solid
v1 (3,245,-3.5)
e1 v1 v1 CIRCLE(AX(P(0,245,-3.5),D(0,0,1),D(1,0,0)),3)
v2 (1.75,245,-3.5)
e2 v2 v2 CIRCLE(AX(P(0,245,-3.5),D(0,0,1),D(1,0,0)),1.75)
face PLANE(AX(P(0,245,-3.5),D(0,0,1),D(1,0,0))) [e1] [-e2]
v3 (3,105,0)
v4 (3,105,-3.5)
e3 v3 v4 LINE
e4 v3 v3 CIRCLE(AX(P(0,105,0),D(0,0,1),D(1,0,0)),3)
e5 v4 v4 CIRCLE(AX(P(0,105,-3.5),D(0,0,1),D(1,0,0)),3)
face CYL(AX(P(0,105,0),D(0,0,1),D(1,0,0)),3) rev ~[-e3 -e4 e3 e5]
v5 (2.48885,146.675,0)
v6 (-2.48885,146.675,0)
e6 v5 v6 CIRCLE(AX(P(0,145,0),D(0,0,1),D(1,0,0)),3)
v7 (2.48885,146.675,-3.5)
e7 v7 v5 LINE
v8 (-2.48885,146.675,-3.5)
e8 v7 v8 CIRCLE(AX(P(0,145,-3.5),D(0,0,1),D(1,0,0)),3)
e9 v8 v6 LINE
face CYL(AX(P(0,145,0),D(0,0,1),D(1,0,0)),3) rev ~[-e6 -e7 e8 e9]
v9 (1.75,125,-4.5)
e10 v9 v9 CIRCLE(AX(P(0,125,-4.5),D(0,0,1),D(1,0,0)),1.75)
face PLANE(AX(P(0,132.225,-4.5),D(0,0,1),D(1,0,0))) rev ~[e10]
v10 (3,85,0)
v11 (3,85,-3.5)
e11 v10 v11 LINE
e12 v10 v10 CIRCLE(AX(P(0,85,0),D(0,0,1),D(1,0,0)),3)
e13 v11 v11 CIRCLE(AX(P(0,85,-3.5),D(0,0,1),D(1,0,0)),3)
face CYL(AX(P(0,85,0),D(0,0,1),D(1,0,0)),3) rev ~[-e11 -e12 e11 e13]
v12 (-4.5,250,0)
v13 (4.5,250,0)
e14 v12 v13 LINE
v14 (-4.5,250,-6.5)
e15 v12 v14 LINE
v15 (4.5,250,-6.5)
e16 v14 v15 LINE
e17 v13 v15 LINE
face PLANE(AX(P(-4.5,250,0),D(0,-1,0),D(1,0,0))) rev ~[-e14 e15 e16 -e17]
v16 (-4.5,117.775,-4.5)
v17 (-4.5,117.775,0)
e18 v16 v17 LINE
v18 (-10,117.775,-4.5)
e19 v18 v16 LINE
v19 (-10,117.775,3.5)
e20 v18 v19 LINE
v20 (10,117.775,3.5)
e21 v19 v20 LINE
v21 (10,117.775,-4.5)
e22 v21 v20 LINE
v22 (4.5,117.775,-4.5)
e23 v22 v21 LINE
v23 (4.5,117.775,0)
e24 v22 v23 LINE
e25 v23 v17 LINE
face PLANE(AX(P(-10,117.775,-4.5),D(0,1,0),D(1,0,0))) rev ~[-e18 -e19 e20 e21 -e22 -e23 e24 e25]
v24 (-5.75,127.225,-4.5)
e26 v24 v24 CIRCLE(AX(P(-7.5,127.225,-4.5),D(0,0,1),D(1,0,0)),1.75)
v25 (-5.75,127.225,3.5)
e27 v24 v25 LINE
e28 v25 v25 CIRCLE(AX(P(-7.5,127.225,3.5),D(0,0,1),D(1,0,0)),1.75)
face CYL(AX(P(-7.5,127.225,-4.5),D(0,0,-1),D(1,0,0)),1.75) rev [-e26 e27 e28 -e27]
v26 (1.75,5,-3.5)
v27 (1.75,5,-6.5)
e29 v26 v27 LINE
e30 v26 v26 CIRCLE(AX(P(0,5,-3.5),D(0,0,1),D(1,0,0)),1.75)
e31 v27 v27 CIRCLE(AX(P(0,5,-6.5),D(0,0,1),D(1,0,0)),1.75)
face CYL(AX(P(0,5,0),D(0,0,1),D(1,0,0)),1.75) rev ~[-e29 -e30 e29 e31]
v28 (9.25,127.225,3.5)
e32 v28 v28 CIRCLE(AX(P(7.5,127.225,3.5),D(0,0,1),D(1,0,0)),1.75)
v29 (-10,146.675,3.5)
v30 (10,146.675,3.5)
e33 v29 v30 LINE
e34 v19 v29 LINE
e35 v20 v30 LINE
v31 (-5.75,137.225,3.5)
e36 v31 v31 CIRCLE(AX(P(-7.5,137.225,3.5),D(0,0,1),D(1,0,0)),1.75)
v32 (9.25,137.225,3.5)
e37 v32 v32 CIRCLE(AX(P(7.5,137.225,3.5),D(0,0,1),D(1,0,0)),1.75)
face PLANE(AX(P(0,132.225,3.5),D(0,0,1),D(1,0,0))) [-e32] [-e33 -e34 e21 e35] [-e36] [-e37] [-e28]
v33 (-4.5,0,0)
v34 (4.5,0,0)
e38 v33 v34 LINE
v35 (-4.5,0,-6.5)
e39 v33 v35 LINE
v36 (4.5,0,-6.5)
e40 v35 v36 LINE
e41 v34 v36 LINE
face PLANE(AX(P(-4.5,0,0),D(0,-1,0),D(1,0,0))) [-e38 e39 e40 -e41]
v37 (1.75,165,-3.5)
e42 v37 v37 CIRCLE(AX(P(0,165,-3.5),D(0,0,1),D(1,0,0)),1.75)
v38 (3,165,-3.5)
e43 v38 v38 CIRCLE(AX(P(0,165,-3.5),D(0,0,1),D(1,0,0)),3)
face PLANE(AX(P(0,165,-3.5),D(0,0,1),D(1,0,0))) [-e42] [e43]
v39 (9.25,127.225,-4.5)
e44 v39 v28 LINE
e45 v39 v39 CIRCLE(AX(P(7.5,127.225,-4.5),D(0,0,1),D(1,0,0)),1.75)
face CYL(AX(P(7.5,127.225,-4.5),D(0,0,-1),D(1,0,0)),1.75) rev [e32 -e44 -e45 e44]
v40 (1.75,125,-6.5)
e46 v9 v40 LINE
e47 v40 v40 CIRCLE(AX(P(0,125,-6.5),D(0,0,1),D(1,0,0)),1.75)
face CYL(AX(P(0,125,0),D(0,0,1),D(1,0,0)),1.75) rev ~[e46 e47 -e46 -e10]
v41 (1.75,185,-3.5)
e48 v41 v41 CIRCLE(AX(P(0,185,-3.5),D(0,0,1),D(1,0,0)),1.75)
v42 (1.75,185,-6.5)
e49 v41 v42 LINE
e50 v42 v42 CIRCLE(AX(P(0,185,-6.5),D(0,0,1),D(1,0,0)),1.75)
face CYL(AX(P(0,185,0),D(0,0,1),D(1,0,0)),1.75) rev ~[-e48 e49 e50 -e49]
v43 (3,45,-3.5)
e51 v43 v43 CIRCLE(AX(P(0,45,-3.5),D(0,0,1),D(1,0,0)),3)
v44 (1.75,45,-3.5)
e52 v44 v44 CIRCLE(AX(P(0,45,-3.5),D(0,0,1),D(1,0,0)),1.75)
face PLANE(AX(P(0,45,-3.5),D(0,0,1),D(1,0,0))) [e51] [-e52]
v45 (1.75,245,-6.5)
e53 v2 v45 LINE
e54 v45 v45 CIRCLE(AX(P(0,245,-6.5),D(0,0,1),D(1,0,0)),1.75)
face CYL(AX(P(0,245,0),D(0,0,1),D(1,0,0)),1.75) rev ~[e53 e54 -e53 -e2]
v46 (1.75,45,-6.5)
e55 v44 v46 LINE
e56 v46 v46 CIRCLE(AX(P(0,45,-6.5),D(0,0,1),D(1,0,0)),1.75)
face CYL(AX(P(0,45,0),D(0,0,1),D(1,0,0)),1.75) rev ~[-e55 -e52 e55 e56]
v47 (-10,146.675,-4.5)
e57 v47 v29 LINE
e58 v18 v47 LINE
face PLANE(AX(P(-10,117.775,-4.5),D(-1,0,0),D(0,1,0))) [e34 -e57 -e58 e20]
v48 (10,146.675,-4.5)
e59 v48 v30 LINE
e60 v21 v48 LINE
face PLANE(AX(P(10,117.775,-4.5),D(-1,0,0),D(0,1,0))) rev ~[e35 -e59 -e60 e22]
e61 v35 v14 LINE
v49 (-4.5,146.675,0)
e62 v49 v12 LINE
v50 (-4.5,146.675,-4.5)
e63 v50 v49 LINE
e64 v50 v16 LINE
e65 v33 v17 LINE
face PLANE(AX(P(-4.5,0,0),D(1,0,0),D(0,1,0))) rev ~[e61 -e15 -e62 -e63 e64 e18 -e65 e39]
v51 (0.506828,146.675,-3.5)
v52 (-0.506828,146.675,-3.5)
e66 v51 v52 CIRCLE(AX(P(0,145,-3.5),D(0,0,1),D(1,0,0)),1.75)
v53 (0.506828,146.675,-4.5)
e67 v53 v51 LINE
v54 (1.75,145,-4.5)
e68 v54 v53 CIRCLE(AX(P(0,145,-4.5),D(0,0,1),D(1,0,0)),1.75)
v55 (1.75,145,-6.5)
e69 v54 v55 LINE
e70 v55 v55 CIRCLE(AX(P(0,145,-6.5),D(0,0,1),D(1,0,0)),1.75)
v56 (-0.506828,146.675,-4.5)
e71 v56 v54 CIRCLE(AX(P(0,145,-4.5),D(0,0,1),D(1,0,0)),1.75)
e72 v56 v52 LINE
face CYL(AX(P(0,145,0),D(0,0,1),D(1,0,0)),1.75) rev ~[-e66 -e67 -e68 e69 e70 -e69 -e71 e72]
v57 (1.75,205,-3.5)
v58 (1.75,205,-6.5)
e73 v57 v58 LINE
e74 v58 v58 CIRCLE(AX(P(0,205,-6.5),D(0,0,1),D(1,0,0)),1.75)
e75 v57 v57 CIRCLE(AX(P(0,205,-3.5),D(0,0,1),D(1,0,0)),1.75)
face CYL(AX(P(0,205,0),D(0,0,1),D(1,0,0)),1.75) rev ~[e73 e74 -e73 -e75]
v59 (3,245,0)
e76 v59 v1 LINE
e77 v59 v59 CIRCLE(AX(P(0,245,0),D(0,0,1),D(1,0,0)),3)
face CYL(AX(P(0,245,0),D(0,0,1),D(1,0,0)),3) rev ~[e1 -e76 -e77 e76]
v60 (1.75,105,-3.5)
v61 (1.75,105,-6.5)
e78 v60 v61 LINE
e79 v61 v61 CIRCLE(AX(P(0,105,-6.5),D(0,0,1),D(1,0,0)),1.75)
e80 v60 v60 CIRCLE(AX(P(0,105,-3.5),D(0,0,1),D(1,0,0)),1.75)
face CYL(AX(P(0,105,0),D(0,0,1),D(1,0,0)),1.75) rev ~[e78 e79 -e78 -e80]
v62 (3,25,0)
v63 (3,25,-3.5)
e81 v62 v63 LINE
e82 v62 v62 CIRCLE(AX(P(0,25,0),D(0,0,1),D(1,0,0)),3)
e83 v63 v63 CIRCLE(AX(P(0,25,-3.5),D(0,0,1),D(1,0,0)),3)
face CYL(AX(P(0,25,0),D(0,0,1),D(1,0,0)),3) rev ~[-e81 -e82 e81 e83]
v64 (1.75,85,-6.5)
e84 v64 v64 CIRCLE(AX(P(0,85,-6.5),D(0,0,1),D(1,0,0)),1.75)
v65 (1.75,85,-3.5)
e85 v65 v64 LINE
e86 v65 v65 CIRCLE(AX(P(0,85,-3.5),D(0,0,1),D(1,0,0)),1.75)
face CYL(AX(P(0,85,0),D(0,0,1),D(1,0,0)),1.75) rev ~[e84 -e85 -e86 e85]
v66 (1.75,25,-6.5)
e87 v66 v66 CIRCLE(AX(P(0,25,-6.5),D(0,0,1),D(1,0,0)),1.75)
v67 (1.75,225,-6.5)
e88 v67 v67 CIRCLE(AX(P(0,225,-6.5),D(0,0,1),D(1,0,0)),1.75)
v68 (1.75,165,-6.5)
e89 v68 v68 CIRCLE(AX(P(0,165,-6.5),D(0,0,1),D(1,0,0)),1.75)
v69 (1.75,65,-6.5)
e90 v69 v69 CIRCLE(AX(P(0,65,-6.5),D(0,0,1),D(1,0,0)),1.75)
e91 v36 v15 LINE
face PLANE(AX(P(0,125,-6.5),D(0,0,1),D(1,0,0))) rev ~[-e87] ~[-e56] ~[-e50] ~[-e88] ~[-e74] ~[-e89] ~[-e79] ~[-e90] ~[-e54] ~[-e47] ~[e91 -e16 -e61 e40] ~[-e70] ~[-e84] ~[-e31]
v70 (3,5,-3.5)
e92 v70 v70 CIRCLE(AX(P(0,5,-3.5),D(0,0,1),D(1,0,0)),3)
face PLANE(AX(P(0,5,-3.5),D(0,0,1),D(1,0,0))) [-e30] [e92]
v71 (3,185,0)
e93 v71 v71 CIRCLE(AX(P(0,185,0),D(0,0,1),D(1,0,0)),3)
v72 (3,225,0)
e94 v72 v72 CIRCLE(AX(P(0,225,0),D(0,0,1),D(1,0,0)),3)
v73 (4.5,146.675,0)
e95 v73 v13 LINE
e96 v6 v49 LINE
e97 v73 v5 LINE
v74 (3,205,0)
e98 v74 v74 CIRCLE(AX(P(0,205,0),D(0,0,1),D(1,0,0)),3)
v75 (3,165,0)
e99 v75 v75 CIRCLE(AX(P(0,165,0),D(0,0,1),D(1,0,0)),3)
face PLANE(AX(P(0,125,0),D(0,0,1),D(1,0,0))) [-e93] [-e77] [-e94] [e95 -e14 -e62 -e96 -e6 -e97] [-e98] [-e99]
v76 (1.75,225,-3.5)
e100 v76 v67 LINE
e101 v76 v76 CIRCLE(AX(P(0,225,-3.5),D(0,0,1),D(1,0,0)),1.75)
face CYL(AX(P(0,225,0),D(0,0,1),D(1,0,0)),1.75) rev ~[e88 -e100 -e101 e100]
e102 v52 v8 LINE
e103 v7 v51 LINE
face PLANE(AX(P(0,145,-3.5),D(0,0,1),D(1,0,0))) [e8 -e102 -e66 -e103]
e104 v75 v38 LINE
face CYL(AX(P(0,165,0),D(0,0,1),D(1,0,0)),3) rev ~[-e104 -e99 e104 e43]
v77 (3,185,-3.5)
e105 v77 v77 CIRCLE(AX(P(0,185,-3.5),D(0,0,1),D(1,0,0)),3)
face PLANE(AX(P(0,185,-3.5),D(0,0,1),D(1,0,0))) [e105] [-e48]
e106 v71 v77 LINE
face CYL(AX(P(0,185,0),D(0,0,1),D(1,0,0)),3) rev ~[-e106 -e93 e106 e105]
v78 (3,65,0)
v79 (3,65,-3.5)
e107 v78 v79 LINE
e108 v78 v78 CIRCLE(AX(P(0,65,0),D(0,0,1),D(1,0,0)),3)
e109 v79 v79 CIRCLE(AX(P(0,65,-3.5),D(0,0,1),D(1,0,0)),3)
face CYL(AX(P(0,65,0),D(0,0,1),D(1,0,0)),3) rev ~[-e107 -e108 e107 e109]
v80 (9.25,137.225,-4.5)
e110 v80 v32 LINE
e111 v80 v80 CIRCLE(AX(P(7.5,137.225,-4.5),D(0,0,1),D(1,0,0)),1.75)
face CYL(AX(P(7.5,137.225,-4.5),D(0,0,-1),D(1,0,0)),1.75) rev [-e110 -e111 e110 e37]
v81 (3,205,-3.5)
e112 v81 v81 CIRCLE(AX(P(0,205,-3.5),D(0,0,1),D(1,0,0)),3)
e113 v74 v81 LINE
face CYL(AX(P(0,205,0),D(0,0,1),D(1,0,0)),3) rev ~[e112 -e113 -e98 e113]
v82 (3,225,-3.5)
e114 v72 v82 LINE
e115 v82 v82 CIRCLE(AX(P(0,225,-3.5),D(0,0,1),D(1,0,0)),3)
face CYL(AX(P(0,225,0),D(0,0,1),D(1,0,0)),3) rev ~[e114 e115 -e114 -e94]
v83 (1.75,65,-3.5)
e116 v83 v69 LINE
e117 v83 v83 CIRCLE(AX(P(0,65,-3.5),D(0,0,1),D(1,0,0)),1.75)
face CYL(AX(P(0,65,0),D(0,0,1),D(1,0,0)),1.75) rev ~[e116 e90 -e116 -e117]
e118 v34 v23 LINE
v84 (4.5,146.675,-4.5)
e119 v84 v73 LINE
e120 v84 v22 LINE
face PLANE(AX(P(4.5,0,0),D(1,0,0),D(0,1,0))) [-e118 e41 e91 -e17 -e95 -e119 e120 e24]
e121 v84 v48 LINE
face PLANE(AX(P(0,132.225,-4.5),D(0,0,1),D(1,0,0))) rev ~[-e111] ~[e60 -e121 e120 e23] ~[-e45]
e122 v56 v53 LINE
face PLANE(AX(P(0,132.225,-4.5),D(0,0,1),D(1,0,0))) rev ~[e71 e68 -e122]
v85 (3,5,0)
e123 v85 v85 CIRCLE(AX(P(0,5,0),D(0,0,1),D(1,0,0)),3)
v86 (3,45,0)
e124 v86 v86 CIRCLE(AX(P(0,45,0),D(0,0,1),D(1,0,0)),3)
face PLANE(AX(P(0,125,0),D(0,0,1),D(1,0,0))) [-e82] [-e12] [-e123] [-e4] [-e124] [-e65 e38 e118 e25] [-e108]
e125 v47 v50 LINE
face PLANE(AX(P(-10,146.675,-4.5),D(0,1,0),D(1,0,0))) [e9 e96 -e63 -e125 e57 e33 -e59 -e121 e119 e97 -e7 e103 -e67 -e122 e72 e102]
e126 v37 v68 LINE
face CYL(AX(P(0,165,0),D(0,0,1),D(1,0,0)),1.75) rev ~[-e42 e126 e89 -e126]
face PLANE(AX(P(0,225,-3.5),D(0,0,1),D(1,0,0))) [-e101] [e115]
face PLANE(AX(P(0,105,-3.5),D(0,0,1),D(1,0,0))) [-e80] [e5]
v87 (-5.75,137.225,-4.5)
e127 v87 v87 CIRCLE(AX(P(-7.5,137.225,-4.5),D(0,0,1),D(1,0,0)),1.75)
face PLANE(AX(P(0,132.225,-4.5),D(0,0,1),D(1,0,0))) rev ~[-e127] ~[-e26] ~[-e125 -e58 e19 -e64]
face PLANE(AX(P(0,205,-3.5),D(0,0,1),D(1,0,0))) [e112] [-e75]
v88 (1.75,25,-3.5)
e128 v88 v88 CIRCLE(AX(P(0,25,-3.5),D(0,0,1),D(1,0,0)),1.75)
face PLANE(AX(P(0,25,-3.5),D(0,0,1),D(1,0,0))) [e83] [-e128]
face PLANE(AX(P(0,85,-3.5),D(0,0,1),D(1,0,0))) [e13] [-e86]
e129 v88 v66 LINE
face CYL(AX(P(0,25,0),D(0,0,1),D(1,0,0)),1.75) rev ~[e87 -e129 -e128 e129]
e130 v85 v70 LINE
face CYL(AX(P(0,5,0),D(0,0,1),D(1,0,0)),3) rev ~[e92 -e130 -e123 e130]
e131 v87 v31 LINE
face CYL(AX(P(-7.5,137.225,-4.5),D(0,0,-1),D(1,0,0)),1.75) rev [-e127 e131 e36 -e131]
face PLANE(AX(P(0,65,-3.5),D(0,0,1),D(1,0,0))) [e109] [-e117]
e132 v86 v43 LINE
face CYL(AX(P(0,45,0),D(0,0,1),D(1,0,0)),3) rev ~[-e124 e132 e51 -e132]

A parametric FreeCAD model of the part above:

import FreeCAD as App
import Part
import Sketcher
from FreeCAD import Vector
Q = App.Units.Quantity


def add_polygon(sketch, points):
    """Adds a closed chain of lines whose ends are joined by coincident constraints."""
    first, n = sketch.GeometryCount, len(points)
    for a, b in zip(points, points[1:] + points[:1]):
        sketch.addGeometry(Part.LineSegment(App.Vector(*a, 0), App.Vector(*b, 0)), False)
    for i in range(n):
        sketch.addConstraint(Sketcher.Constraint("Coincident", first + i, 2, first + (i + 1) % n, 1))

doc = App.newDocument("Part")
params = doc.addObject("Spreadsheet::Sheet", "Params")
for row, (alias, value) in enumerate([
    ("sketch1_width", "9 mm"),
    ("sketch1_height", "250 mm"),
    ("pad1_length", "6.5 mm"),
    ("sketch2_diameter", "3.5 mm"),
    ("pocket1_length", "6.5 mm"),
    ("linearpattern_pitch", "20 mm"),
    ("sketch3_diameter", "6 mm"),
    ("pocket2_length", "3.5 mm"),
    ("linearpattern2_pitch", "20 mm"),
    ("sketch4_diameter", "3.5 mm"),
    ("sketch4_width", "20 mm"),
    ("sketch4_height", "28.9 mm"),
    ("pad2_length", "8 mm"),
], start=1):
    params.set(f"A{row}", alias)
    params.set(f"B{row}", "=" + value)
    params.setAlias(f"B{row}", alias)

body = doc.addObject("PartDesign::Body", "Body")

# Sketch on XY plane
sketch1 = doc.addObject("Sketcher::SketchObject", "Sketch")
body.addObject(sketch1)
sketch1.AttachmentSupport = (doc.XY_Plane, [""])
sketch1.MapMode = "FlatFace"
add_polygon(sketch1, [(-4, 250), (-4, 0), (4, 0), (4, 250)])  # lines 0-3
sketch1.addConstraint([
    Sketcher.Constraint("Vertical", 0),
    Sketcher.Constraint("Horizontal", 1),
    Sketcher.Constraint("Vertical", 2),
    Sketcher.Constraint("Horizontal", 3),
    Sketcher.Constraint("Symmetric", 0, 2, 1, 2, -1, 1),
    Sketcher.Constraint("DistanceX", 1, 1, 1, 2, Q("9 mm")),
    Sketcher.Constraint("DistanceY", 0, 2, 0, 1, Q("250 mm")),
])
sketch1.setExpression("Constraints[9]", "Params.sketch1_width")
sketch1.setExpression("Constraints[10]", "Params.sketch1_height")
pad1 = doc.addObject("PartDesign::Pad", "Pad")
body.addObject(pad1)
pad1.Profile = sketch1
pad1.setExpression("Length", "Params.pad1_length")
pad1.Reversed = True

# Sketch on XY plane
sketch2 = doc.addObject("Sketcher::SketchObject", "Sketch001")
body.addObject(sketch2)
sketch2.AttachmentSupport = (doc.XY_Plane, [""])
sketch2.MapMode = "FlatFace"
sketch2.addGeometry(Part.Circle(Vector(0, 5, 0), Vector(0, 0, 1), 1.8), False)
sketch2.addConstraint([
    Sketcher.Constraint("PointOnObject", 0, 3, -2),
    Sketcher.Constraint("Diameter", 0, Q("3.5 mm")),
    Sketcher.Constraint("DistanceY", -1, 1, 0, 3, Q("5 mm")),
])
sketch2.setExpression("Constraints[1]", "Params.sketch2_diameter")
pocket1 = doc.addObject("PartDesign::Pocket", "Pocket")
body.addObject(pocket1)
pocket1.Profile = sketch2
pocket1.setExpression("Length", "Params.pocket1_length")
doc.recompute()

linearpattern = doc.addObject("PartDesign::LinearPattern", "LinearPattern")
body.addObject(linearpattern)
linearpattern.Originals = [pocket1]
linearpattern.Direction = (doc.Y_Axis, [""])
linearpattern.Mode = "offset"
linearpattern.setExpression("Offset", "Params.linearpattern_pitch")
linearpattern.Occurrences = 13
body.Tip = linearpattern

# Sketch on XY plane
sketch3 = doc.addObject("Sketcher::SketchObject", "Sketch002")
body.addObject(sketch3)
sketch3.AttachmentSupport = (doc.XY_Plane, [""])
sketch3.MapMode = "FlatFace"
sketch3.addGeometry(Part.Circle(Vector(0, 5, 0), Vector(0, 0, 1), 3), False)
sketch3.addConstraint([
    Sketcher.Constraint("PointOnObject", 0, 3, -2),
    Sketcher.Constraint("Diameter", 0, Q("6 mm")),
    Sketcher.Constraint("DistanceY", -1, 1, 0, 3, Q("5 mm")),
])
sketch3.setExpression("Constraints[1]", "Params.sketch3_diameter")
pocket2 = doc.addObject("PartDesign::Pocket", "Pocket001")
body.addObject(pocket2)
pocket2.Profile = sketch3
pocket2.setExpression("Length", "Params.pocket2_length")
doc.recompute()

linearpattern2 = doc.addObject("PartDesign::LinearPattern", "LinearPattern001")
body.addObject(linearpattern2)
linearpattern2.Originals = [pocket2]
linearpattern2.Direction = (doc.Y_Axis, [""])
linearpattern2.Mode = "offset"
linearpattern2.setExpression("Offset", "Params.linearpattern2_pitch")
linearpattern2.Occurrences = 13
body.Tip = linearpattern2

# Sketch on XY plane
sketch4 = doc.addObject("Sketcher::SketchObject", "Sketch003")
body.addObject(sketch4)
sketch4.AttachmentSupport = (doc.XY_Plane, [""])
sketch4.MapMode = "FlatFace"
sketch4.AttachmentOffset = App.Placement(Vector(0, 0, -4.5), App.Rotation())
add_polygon(sketch4, [(-10, 146.7), (-10, 117.8), (10, 117.8), (10, 146.7)])  # lines 0-3
sketch4.addGeometry(Part.Circle(Vector(-7.5, 127.2, 0), Vector(0, 0, 1), 1.8), False)  # 4
sketch4.addGeometry(Part.Circle(Vector(7.5, 127.2, 0), Vector(0, 0, 1), 1.8), False)  # 5
sketch4.addGeometry(Part.Circle(Vector(-7.5, 137.2, 0), Vector(0, 0, 1), 1.8), False)  # 6
sketch4.addGeometry(Part.Circle(Vector(7.5, 137.2, 0), Vector(0, 0, 1), 1.8), False)  # 7
sketch4.addConstraint([
    Sketcher.Constraint("Vertical", 0),
    Sketcher.Constraint("Horizontal", 1),
    Sketcher.Constraint("Vertical", 2),
    Sketcher.Constraint("Horizontal", 3),
    Sketcher.Constraint("Equal", 4, 5),
    Sketcher.Constraint("Equal", 5, 6),
    Sketcher.Constraint("Equal", 6, 7),
    Sketcher.Constraint("Symmetric", 4, 3, 5, 3, -2),
    Sketcher.Constraint("Symmetric", 6, 3, 7, 3, -2),
    Sketcher.Constraint("Vertical", 4, 3, 6, 3),
    Sketcher.Constraint("Diameter", 4, Q("3.5 mm")),
    Sketcher.Constraint("DistanceX", 1, 1, 1, 2, Q("20 mm")),
    Sketcher.Constraint("DistanceY", 0, 2, 0, 1, Q("28.9 mm")),
    Sketcher.Constraint("DistanceX", 0, 2, -1, 1, Q("10 mm")),
    Sketcher.Constraint("DistanceX", 4, 3, 5, 3, Q("15 mm")),
    Sketcher.Constraint("DistanceY", 4, 3, 6, 3, Q("10 mm")),
    Sketcher.Constraint("DistanceY", 0, 2, 4, 3, Q("9.45 mm")),
    Sketcher.Constraint("DistanceY", -1, 1, 4, 3, Q("127.225 mm")),
])
sketch4.setExpression("Constraints[14]", "Params.sketch4_diameter")
sketch4.setExpression("Constraints[15]", "Params.sketch4_width")
sketch4.setExpression("Constraints[16]", "Params.sketch4_height")
pad2 = doc.addObject("PartDesign::Pad", "Pad001")
body.addObject(pad2)
pad2.Profile = sketch4
pad2.setExpression("Length", "Params.pad2_length")

doc.recompute()
